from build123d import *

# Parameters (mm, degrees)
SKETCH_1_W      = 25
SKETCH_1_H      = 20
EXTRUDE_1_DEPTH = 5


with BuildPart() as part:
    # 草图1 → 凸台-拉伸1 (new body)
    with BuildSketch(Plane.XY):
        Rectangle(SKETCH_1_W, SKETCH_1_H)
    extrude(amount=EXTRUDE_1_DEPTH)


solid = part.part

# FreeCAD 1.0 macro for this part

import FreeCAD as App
import Part
import Sketcher

V = App.Vector
Q = App.Units.Quantity

doc = App.newDocument("Part")
params = doc.addObject("Spreadsheet::Sheet", "Params")
for row, (alias, value) in enumerate([
    ("sketch1_width", "25 mm"),
    ("sketch1_height", "20 mm"),
    ("pad1_length", "5 mm"),
], start=1):
    params.set(f"A{row}", alias)
    params.set(f"B{row}", "=" + value)
    params.setAlias(f"B{row}", alias)

body = doc.addObject("PartDesign::Body", "Body")

sketch1 = body.newObject("Sketcher::SketchObject", "Sketch")
sketch1.AttachmentSupport = (doc.getObject("XY_Plane"), [""])
sketch1.MapMode = "FlatFace"
sketch1.addGeometry([
    Part.LineSegment(V(-12, 10, 0), V(-12, -10, 0)),
    Part.LineSegment(V(-12, -10, 0), V(12, -10, 0)),
    Part.LineSegment(V(12, -10, 0), V(12, 10, 0)),
    Part.LineSegment(V(12, 10, 0), V(-12, 10, 0)),
], False)
sketch1.addConstraint([
    Sketcher.Constraint("Coincident", 0, 2, 1, 1),
    Sketcher.Constraint("Coincident", 1, 2, 2, 1),
    Sketcher.Constraint("Coincident", 2, 2, 3, 1),
    Sketcher.Constraint("Coincident", 3, 2, 0, 1),
    Sketcher.Constraint("Vertical", 0),
    Sketcher.Constraint("Horizontal", 1),
    Sketcher.Constraint("Vertical", 2),
    Sketcher.Constraint("Horizontal", 3),
    Sketcher.Constraint("Symmetric", 0, 2, 2, 2, -1, 1),
    Sketcher.Constraint("DistanceX", 1, 1, 1, 2, Q("25 mm")),
    Sketcher.Constraint("DistanceY", 0, 2, 0, 1, Q("20 mm")),
])
sketch1.setExpression("Constraints[9]", "Params.sketch1_width")
sketch1.setExpression("Constraints[10]", "Params.sketch1_height")
pad1 = body.newObject("PartDesign::Pad", "Pad")
pad1.Profile = sketch1
pad1.setExpression("Length", "Params.pad1_length")

doc.recompute()
